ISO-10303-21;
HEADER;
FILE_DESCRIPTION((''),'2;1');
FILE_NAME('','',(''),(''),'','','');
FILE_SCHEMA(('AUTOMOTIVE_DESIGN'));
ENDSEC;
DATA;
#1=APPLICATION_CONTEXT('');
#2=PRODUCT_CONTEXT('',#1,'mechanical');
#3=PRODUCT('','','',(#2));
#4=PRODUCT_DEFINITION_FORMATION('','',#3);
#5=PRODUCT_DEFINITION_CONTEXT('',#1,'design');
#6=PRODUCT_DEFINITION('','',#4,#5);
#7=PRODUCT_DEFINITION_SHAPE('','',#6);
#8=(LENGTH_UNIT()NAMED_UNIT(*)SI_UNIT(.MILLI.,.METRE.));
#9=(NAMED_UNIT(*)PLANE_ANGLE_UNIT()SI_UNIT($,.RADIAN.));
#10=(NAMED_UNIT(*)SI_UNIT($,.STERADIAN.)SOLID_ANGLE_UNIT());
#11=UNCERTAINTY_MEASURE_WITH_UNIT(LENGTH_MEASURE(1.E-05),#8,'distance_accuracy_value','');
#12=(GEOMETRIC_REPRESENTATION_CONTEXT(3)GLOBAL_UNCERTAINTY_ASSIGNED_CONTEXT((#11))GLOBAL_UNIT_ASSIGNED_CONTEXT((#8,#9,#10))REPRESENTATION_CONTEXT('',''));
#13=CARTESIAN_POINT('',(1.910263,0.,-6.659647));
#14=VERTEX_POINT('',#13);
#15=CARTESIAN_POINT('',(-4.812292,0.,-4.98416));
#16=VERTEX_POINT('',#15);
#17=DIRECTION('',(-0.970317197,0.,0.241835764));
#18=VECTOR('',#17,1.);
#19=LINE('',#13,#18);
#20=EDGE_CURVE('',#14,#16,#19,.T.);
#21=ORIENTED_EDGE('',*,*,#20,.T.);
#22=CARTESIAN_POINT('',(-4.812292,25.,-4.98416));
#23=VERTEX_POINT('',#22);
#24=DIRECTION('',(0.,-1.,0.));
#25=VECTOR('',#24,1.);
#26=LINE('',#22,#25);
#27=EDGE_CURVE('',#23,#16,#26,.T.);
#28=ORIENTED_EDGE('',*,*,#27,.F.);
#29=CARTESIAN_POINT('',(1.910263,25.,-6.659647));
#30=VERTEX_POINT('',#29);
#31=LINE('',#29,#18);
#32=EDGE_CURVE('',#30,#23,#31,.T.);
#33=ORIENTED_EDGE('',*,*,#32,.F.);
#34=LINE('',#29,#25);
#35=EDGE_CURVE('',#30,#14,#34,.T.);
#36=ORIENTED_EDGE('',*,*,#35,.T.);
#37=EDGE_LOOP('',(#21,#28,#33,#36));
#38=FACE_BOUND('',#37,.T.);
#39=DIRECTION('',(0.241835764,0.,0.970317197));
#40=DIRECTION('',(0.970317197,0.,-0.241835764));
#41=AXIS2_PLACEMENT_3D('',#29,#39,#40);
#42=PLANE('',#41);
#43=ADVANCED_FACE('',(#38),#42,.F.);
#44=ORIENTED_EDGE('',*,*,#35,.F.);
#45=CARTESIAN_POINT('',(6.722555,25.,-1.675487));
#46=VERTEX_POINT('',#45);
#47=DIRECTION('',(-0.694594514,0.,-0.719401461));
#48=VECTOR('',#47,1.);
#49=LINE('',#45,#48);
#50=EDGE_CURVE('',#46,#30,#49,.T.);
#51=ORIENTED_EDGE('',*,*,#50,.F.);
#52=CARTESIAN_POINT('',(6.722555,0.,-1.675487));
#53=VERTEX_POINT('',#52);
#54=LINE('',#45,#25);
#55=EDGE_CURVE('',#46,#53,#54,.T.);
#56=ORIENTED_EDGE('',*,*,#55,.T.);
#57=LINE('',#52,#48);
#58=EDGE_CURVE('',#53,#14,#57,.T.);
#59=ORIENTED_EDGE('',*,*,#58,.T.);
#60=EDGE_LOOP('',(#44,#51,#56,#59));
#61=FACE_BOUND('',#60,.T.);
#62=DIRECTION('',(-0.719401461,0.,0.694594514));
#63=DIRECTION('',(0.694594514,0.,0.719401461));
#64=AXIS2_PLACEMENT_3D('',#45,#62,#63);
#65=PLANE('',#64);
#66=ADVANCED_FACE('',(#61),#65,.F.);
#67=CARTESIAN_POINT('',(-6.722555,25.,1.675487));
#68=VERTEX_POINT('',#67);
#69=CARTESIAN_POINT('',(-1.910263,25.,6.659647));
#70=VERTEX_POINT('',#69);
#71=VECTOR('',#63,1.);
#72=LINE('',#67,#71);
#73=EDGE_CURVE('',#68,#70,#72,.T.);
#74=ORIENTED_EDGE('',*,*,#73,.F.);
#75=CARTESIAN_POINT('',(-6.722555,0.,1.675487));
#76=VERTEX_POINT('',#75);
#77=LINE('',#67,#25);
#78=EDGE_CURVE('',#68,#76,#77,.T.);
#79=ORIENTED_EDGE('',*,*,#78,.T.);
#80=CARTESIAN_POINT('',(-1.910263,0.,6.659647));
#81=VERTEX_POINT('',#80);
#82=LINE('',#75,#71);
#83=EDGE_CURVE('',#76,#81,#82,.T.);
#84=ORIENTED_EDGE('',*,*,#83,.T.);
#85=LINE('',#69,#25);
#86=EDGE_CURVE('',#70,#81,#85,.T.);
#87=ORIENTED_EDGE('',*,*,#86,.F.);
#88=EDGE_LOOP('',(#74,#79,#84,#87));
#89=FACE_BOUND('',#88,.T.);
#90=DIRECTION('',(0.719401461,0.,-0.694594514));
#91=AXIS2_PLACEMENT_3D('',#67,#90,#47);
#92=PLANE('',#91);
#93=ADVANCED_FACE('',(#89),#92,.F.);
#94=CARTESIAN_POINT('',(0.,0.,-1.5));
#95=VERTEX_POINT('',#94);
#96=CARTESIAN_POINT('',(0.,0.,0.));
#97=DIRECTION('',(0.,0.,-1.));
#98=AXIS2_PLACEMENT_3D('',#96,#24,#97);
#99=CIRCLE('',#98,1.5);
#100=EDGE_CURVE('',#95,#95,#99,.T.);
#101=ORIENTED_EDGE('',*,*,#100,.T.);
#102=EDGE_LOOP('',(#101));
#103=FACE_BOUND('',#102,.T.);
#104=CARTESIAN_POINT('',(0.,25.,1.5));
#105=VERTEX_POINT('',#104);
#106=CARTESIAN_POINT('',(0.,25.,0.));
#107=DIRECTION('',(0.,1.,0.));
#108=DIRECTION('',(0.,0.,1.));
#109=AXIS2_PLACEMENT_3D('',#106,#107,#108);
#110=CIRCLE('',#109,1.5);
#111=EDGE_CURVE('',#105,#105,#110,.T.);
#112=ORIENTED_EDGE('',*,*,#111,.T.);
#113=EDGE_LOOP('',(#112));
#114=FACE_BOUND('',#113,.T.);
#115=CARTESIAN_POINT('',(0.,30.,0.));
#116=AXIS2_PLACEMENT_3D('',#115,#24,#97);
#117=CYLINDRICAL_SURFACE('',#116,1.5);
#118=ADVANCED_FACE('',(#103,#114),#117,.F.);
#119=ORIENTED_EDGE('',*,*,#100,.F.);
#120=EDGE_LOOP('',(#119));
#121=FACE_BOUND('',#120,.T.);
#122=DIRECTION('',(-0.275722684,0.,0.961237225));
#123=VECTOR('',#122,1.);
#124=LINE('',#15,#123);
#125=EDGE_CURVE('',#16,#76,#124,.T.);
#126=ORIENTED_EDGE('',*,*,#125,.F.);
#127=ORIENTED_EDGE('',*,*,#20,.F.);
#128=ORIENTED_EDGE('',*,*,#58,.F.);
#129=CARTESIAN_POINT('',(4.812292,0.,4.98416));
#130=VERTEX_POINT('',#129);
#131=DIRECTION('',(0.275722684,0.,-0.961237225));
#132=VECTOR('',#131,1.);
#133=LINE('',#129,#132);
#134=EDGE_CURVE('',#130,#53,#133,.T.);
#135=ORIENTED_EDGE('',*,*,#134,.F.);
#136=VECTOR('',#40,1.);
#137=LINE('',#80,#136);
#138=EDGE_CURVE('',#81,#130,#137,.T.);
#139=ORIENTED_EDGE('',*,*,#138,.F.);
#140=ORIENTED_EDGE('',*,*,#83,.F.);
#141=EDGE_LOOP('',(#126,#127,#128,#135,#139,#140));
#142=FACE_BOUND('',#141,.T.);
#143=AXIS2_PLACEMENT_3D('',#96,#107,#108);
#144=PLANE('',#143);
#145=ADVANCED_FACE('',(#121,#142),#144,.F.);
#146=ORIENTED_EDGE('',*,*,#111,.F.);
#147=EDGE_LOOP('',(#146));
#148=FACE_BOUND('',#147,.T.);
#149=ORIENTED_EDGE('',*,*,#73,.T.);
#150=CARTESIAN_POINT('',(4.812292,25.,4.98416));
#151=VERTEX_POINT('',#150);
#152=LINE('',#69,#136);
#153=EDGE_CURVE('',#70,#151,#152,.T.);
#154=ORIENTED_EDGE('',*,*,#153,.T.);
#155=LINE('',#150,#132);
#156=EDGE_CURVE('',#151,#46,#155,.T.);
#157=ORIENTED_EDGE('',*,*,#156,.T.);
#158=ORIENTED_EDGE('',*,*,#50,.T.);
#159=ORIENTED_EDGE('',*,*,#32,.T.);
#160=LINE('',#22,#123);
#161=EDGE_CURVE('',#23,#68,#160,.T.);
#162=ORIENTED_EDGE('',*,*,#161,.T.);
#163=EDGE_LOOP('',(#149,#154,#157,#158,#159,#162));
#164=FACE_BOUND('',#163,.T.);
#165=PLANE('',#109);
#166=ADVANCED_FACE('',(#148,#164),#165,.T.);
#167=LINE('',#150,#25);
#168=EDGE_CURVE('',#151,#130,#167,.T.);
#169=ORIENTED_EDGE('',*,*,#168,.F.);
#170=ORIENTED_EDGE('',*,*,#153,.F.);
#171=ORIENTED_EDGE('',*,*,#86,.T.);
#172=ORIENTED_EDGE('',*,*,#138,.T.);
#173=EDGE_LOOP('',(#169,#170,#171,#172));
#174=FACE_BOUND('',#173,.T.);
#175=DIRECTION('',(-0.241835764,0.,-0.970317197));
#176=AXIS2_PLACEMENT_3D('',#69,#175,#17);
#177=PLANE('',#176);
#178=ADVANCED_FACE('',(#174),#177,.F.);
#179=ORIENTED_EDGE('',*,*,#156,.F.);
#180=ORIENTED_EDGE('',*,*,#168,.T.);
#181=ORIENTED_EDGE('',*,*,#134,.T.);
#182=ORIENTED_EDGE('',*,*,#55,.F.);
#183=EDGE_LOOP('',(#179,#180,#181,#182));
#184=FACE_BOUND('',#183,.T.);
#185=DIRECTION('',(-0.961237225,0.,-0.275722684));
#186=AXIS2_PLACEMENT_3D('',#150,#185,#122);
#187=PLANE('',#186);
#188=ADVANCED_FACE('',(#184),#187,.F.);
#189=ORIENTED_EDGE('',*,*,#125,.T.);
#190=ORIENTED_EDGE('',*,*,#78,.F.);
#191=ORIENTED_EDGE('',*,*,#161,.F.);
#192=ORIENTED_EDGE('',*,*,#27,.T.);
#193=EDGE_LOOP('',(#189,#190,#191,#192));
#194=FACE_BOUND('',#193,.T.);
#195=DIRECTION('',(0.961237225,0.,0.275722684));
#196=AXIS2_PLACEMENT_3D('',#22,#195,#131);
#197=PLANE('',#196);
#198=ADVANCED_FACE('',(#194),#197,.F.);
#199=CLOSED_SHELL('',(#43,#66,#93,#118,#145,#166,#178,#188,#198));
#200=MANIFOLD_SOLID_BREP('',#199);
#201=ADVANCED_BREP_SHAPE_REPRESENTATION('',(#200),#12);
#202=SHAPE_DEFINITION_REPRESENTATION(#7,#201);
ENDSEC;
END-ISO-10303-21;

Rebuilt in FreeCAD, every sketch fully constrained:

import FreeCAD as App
import Part
import Sketcher
from FreeCAD import Vector
Q = App.Units.Quantity


def add_polygon(sketch, points):
    """Adds a closed chain of lines whose ends are joined by coincident constraints."""
    first, n = sketch.GeometryCount, len(points)
    for a, b in zip(points, points[1:] + points[:1]):
        sketch.addGeometry(Part.LineSegment(App.Vector(*a, 0), App.Vector(*b, 0)), False)
    for i in range(n):
        sketch.addConstraint(Sketcher.Constraint("Coincident", first + i, 2, first + (i + 1) % n, 1))

doc = App.newDocument("Part")
params = doc.addObject("Spreadsheet::Sheet", "Params")
for row, (alias, value) in enumerate([
    ("pad1_length", "25 mm"),
    ("sketch2_diameter", "3 mm"),
    ("pocket1_length", "30 mm"),
], start=1):
    params.set(f"A{row}", alias)
    params.set(f"B{row}", "=" + value)
    params.setAlias(f"B{row}", alias)

body = doc.addObject("PartDesign::Body", "Body")

sketch1 = body.newObject("Sketcher::SketchObject", "Sketch")
sketch1.AttachmentSupport = (doc.getObject("XZ_Plane"), [""])
sketch1.MapMode = "FlatFace"
add_polygon(sketch1, [(5, 5), (7, -2), (2, -7), (-5, -5), (-7, 2), (-2, 7)])
sketch1.addConstraint(Sketcher.Constraint("Symmetric", 0, 2, 3, 2, -1, 1))
sketch1.addConstraint(Sketcher.Constraint("Symmetric", 1, 2, 4, 2, -1, 1))
sketch1.addConstraint(Sketcher.Constraint("Symmetric", 2, 2, 5, 2, -1, 1))
sketch1.addConstraint(Sketcher.Constraint("Equal", 0, 1))
sketch1.addConstraint(Sketcher.Constraint("Equal", 1, 2))
sketch1.addConstraint(Sketcher.Constraint("DistanceX", 2, 2, -1, 1, Q("4.812292 mm")))
sketch1.addConstraint(Sketcher.Constraint("DistanceY", 2, 2, -1, 1, Q("4.98416 mm")))
sketch1.addConstraint(Sketcher.Constraint("DistanceX", 1, 2, 0, 2, Q("4.812292 mm")))
sketch1.addConstraint(Sketcher.Constraint("DistanceY", 1, 2, 0, 2, Q("4.98416 mm")))
pad1 = body.newObject("PartDesign::Pad", "Pad")
pad1.Profile = sketch1
pad1.setExpression("Length", "Params.pad1_length")
pad1.Reversed = True

sketch2 = body.newObject("Sketcher::SketchObject", "Sketch001")
sketch2.AttachmentSupport = (doc.getObject("XZ_Plane"), [""])
sketch2.MapMode = "FlatFace"
sketch2.addGeometry(Part.Circle(Vector(0, 0, 0), Vector(0, 0, 1), 1.5), False)
sketch2.addConstraint(Sketcher.Constraint("Coincident", 0, 3, -1, 1))
sketch2.addConstraint(Sketcher.Constraint("Diameter", 0, Q("3 mm")))
sketch2.setExpression("Constraints[1]", "Params.sketch2_diameter")
pocket1 = body.newObject("PartDesign::Pocket", "Pocket")
pocket1.Profile = sketch2
pocket1.setExpression("Length", "Params.pocket1_length")

doc.recompute()
